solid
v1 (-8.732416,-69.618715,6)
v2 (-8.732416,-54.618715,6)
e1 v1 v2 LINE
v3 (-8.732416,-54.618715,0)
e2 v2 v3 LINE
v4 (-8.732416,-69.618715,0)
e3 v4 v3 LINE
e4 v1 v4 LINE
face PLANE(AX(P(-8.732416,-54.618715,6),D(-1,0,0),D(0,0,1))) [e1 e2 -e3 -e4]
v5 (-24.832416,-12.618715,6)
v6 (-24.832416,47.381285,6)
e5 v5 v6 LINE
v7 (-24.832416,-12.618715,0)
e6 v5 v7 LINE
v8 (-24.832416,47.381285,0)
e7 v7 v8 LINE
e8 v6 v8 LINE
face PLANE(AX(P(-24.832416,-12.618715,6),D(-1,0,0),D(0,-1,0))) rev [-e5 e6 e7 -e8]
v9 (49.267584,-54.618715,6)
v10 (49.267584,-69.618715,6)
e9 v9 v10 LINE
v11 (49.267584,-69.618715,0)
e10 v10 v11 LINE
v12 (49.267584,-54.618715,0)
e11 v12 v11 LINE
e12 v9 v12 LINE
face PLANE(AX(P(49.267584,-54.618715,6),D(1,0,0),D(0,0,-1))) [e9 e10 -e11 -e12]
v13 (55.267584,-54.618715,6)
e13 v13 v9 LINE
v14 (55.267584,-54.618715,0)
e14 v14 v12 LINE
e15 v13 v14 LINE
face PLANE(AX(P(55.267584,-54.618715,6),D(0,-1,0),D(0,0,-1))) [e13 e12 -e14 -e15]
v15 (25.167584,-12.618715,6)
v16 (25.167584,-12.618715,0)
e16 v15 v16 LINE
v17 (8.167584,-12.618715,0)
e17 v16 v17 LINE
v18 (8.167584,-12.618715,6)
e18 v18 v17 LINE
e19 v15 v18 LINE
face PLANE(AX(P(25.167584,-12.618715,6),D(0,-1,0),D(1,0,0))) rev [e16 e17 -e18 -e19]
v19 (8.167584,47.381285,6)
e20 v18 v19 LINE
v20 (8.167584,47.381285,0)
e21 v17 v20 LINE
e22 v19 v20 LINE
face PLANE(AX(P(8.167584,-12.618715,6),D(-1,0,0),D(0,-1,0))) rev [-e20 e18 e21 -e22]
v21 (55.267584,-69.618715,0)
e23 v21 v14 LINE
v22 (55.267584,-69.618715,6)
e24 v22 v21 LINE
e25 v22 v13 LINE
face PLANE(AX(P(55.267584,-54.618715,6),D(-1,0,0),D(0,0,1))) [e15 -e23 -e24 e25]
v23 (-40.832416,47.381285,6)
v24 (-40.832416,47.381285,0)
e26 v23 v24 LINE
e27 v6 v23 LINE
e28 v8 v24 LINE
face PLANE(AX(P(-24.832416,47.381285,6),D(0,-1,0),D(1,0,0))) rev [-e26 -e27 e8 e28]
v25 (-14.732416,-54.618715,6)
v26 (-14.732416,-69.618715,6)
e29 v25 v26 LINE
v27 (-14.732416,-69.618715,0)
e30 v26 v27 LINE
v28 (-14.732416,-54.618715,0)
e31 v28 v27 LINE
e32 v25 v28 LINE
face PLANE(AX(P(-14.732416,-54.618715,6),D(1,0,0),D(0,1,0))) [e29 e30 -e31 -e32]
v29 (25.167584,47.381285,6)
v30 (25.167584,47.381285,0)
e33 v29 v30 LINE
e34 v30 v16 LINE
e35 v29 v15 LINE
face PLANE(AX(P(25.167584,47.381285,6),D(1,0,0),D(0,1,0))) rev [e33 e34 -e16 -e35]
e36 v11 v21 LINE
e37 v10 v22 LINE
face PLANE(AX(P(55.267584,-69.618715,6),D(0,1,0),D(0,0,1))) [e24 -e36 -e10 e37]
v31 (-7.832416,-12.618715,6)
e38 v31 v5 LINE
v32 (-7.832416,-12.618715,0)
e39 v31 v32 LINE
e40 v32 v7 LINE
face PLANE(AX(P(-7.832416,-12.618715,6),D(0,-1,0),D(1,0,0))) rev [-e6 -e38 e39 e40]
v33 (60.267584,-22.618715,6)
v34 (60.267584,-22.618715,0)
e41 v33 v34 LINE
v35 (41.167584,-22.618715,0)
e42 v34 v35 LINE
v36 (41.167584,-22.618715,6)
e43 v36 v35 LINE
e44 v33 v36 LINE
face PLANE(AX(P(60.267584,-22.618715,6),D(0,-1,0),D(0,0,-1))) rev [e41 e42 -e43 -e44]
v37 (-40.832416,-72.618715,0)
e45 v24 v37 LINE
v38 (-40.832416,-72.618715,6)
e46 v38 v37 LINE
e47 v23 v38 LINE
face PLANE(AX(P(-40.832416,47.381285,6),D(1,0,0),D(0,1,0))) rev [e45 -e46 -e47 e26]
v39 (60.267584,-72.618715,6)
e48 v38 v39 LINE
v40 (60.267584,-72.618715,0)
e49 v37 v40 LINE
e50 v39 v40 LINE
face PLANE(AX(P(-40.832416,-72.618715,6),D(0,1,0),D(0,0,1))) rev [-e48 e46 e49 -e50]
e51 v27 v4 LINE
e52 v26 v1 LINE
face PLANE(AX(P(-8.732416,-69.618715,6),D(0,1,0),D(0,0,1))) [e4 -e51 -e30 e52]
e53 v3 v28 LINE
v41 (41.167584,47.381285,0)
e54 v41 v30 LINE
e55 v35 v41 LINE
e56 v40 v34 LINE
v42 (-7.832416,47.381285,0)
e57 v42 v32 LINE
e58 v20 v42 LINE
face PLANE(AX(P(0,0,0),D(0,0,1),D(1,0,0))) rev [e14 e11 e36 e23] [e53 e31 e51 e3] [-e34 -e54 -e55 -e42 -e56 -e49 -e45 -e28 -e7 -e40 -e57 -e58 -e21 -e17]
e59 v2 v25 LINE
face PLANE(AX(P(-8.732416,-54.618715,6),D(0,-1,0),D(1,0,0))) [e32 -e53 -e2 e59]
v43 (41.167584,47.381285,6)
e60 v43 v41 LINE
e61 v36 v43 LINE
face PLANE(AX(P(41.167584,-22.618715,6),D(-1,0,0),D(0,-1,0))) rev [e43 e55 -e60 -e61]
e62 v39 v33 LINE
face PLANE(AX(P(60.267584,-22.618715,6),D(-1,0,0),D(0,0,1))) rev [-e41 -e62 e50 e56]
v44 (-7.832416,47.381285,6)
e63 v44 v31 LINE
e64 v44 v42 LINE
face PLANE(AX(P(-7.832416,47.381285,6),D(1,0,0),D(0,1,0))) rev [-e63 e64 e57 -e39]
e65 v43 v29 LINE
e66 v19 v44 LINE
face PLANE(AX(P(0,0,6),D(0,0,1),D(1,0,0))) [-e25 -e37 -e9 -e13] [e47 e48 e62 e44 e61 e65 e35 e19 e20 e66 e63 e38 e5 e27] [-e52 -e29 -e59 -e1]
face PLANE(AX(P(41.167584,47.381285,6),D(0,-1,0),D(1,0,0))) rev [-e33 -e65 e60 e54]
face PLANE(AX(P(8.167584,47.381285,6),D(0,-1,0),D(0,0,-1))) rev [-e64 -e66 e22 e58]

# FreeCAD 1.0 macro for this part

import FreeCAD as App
import Part
import Sketcher
from FreeCAD import Vector
Q = App.Units.Quantity

doc = App.newDocument("Part")
params = doc.addObject("Spreadsheet::Sheet", "Params")
for row, (alias, value) in enumerate([
    ("sketch1_width", "17 mm"),
    ("sketch1_width2", "16 mm"),
    ("sketch1_width3", "6 mm"),
    ("sketch1_height", "60 mm"),
    ("sketch1_height2", "120 mm"),
    ("pad1_length", "6 mm"),
], start=1):
    params.set(f"A{row}", alias)
    params.set(f"B{row}", "=" + value)
    params.setAlias(f"B{row}", alias)

body = doc.addObject("PartDesign::Body", "Body")

# Sketch on XY plane
sketch1 = body.newObject("Sketcher::SketchObject", "Sketch")
sketch1.AttachmentSupport = (doc.getObject("XY_Plane"), [""])
sketch1.MapMode = "FlatFace"
sketch1.addGeometry([
    Part.LineSegment(Vector(25.167584, 47.381285, 0), Vector(25.167584, -12.618715, 0)),  # 0
    Part.LineSegment(Vector(25.167584, -12.618715, 0), Vector(8.167584, -12.618715, 0)),  # 1
    Part.LineSegment(Vector(8.167584, -12.618715, 0), Vector(8.167584, 47.381285, 0)),  # 2
    Part.LineSegment(Vector(8.167584, 47.381285, 0), Vector(-7.832416, 47.381285, 0)),  # 3
    Part.LineSegment(Vector(-7.832416, 47.381285, 0), Vector(-7.832416, -12.618715, 0)),  # 4
    Part.LineSegment(Vector(-7.832416, -12.618715, 0), Vector(-24.832416, -12.618715, 0)),  # 5
    Part.LineSegment(Vector(-24.832416, -12.618715, 0), Vector(-24.832416, 47.381285, 0)),  # 6
    Part.LineSegment(Vector(-24.832416, 47.381285, 0), Vector(-40.832416, 47.381285, 0)),  # 7
    Part.LineSegment(Vector(-40.832416, 47.381285, 0), Vector(-40.832416, -72.618715, 0)),  # 8
    Part.LineSegment(Vector(-40.832416, -72.618715, 0), Vector(60.267584, -72.618715, 0)),  # 9
    Part.LineSegment(Vector(60.267584, -72.618715, 0), Vector(60.267584, -22.618715, 0)),  # 10
    Part.LineSegment(Vector(60.267584, -22.618715, 0), Vector(41.167584, -22.618715, 0)),  # 11
    Part.LineSegment(Vector(41.167584, -22.618715, 0), Vector(41.167584, 47.381285, 0)),  # 12
    Part.LineSegment(Vector(41.167584, 47.381285, 0), Vector(25.167584, 47.381285, 0)),  # 13
    Part.LineSegment(Vector(-8.732416, -69.618715, 0), Vector(-14.732416, -69.618715, 0)),  # 14
    Part.LineSegment(Vector(-14.732416, -69.618715, 0), Vector(-14.732416, -54.618715, 0)),  # 15
    Part.LineSegment(Vector(-14.732416, -54.618715, 0), Vector(-8.732416, -54.618715, 0)),  # 16
    Part.LineSegment(Vector(-8.732416, -54.618715, 0), Vector(-8.732416, -69.618715, 0)),  # 17
    Part.LineSegment(Vector(55.267584, -69.618715, 0), Vector(49.267584, -69.618715, 0)),  # 18
    Part.LineSegment(Vector(49.267584, -69.618715, 0), Vector(49.267584, -54.618715, 0)),  # 19
    Part.LineSegment(Vector(49.267584, -54.618715, 0), Vector(55.267584, -54.618715, 0)),  # 20
    Part.LineSegment(Vector(55.267584, -54.618715, 0), Vector(55.267584, -69.618715, 0)),  # 21
], False)
sketch1.addConstraint([
    Sketcher.Constraint("Coincident", 0, 2, 1, 1),
    Sketcher.Constraint("Coincident", 1, 2, 2, 1),
    Sketcher.Constraint("Coincident", 2, 2, 3, 1),
    Sketcher.Constraint("Coincident", 3, 2, 4, 1),
    Sketcher.Constraint("Coincident", 4, 2, 5, 1),
    Sketcher.Constraint("Coincident", 5, 2, 6, 1),
    Sketcher.Constraint("Coincident", 6, 2, 7, 1),
    Sketcher.Constraint("Coincident", 7, 2, 8, 1),
    Sketcher.Constraint("Coincident", 8, 2, 9, 1),
    Sketcher.Constraint("Coincident", 9, 2, 10, 1),
    Sketcher.Constraint("Coincident", 10, 2, 11, 1),
    Sketcher.Constraint("Coincident", 11, 2, 12, 1),
    Sketcher.Constraint("Coincident", 12, 2, 13, 1),
    Sketcher.Constraint("Coincident", 13, 2, 0, 1),
    Sketcher.Constraint("Coincident", 14, 2, 15, 1),
    Sketcher.Constraint("Coincident", 15, 2, 16, 1),
    Sketcher.Constraint("Coincident", 16, 2, 17, 1),
    Sketcher.Constraint("Coincident", 17, 2, 14, 1),
    Sketcher.Constraint("Coincident", 18, 2, 19, 1),
    Sketcher.Constraint("Coincident", 19, 2, 20, 1),
    Sketcher.Constraint("Coincident", 20, 2, 21, 1),
    Sketcher.Constraint("Coincident", 21, 2, 18, 1),
    Sketcher.Constraint("Vertical", 0),
    Sketcher.Constraint("Horizontal", 1),
    Sketcher.Constraint("Vertical", 2),
    Sketcher.Constraint("Horizontal", 3),
    Sketcher.Constraint("Vertical", 4),
    Sketcher.Constraint("Horizontal", 5),
    Sketcher.Constraint("Vertical", 6),
    Sketcher.Constraint("Horizontal", 7),
    Sketcher.Constraint("Vertical", 8),
    Sketcher.Constraint("Horizontal", 9),
    Sketcher.Constraint("Vertical", 10),
    Sketcher.Constraint("Horizontal", 11),
    Sketcher.Constraint("Vertical", 12),
    Sketcher.Constraint("Horizontal", 13),
    Sketcher.Constraint("Horizontal", 14),
    Sketcher.Constraint("Vertical", 15),
    Sketcher.Constraint("Horizontal", 16),
    Sketcher.Constraint("Vertical", 17),
    Sketcher.Constraint("Horizontal", 18),
    Sketcher.Constraint("Vertical", 19),
    Sketcher.Constraint("Horizontal", 20),
    Sketcher.Constraint("Vertical", 21),
    Sketcher.Constraint("Horizontal", 1, 2, 4, 2),
    Sketcher.Constraint("Horizontal", 3, 2, 6, 2),
    Sketcher.Constraint("Horizontal", 7, 2, 12, 2),
    Sketcher.Constraint("Horizontal", 17, 2, 18, 2),
    Sketcher.Constraint("Horizontal", 16, 2, 19, 2),
    Sketcher.Constraint("Equal", 1, 5),
    Sketcher.Constraint("Equal", 3, 7),
    Sketcher.Constraint("Equal", 7, 13),
    Sketcher.Constraint("Equal", 16, 18),
    Sketcher.Constraint("DistanceX", 1, 2, 1, 1, Q("17 mm")),
    Sketcher.Constraint("DistanceX", 3, 2, 3, 1, Q("16 mm")),
    Sketcher.Constraint("DistanceX", 14, 2, 14, 1, Q("6 mm")),
    Sketcher.Constraint("DistanceY", 0, 2, 0, 1, Q("60 mm")),
    Sketcher.Constraint("DistanceY", 8, 2, 8, 1, Q("120 mm")),
    Sketcher.Constraint("DistanceY", 10, 1, 10, 2, Q("50 mm")),
    Sketcher.Constraint("DistanceY", 15, 1, 15, 2, Q("15 mm")),
    Sketcher.Constraint("DistanceX", 9, 1, 9, 2, Q("101.1 mm")),
    Sketcher.Constraint("DistanceY", 8, 2, 14, 2, Q("3 mm")),
    Sketcher.Constraint("DistanceX", 18, 2, 9, 2, Q("11 mm")),
    Sketcher.Constraint("DistanceX", 17, 2, 18, 2, Q("58 mm")),
    Sketcher.Constraint("DistanceX", -1, 1, 0, 2, Q("25.167584 mm")),
    Sketcher.Constraint("DistanceY", 0, 2, -1, 1, Q("12.618715 mm")),
])
sketch1.setExpression("Constraints[53]", "Params.sketch1_width")
sketch1.setExpression("Constraints[54]", "Params.sketch1_width2")
sketch1.setExpression("Constraints[55]", "Params.sketch1_width3")
sketch1.setExpression("Constraints[56]", "Params.sketch1_height")
sketch1.setExpression("Constraints[57]", "Params.sketch1_height2")
pad1 = body.newObject("PartDesign::Pad", "Pad")
pad1.Profile = sketch1
pad1.setExpression("Length", "Params.pad1_length")

doc.recompute()
